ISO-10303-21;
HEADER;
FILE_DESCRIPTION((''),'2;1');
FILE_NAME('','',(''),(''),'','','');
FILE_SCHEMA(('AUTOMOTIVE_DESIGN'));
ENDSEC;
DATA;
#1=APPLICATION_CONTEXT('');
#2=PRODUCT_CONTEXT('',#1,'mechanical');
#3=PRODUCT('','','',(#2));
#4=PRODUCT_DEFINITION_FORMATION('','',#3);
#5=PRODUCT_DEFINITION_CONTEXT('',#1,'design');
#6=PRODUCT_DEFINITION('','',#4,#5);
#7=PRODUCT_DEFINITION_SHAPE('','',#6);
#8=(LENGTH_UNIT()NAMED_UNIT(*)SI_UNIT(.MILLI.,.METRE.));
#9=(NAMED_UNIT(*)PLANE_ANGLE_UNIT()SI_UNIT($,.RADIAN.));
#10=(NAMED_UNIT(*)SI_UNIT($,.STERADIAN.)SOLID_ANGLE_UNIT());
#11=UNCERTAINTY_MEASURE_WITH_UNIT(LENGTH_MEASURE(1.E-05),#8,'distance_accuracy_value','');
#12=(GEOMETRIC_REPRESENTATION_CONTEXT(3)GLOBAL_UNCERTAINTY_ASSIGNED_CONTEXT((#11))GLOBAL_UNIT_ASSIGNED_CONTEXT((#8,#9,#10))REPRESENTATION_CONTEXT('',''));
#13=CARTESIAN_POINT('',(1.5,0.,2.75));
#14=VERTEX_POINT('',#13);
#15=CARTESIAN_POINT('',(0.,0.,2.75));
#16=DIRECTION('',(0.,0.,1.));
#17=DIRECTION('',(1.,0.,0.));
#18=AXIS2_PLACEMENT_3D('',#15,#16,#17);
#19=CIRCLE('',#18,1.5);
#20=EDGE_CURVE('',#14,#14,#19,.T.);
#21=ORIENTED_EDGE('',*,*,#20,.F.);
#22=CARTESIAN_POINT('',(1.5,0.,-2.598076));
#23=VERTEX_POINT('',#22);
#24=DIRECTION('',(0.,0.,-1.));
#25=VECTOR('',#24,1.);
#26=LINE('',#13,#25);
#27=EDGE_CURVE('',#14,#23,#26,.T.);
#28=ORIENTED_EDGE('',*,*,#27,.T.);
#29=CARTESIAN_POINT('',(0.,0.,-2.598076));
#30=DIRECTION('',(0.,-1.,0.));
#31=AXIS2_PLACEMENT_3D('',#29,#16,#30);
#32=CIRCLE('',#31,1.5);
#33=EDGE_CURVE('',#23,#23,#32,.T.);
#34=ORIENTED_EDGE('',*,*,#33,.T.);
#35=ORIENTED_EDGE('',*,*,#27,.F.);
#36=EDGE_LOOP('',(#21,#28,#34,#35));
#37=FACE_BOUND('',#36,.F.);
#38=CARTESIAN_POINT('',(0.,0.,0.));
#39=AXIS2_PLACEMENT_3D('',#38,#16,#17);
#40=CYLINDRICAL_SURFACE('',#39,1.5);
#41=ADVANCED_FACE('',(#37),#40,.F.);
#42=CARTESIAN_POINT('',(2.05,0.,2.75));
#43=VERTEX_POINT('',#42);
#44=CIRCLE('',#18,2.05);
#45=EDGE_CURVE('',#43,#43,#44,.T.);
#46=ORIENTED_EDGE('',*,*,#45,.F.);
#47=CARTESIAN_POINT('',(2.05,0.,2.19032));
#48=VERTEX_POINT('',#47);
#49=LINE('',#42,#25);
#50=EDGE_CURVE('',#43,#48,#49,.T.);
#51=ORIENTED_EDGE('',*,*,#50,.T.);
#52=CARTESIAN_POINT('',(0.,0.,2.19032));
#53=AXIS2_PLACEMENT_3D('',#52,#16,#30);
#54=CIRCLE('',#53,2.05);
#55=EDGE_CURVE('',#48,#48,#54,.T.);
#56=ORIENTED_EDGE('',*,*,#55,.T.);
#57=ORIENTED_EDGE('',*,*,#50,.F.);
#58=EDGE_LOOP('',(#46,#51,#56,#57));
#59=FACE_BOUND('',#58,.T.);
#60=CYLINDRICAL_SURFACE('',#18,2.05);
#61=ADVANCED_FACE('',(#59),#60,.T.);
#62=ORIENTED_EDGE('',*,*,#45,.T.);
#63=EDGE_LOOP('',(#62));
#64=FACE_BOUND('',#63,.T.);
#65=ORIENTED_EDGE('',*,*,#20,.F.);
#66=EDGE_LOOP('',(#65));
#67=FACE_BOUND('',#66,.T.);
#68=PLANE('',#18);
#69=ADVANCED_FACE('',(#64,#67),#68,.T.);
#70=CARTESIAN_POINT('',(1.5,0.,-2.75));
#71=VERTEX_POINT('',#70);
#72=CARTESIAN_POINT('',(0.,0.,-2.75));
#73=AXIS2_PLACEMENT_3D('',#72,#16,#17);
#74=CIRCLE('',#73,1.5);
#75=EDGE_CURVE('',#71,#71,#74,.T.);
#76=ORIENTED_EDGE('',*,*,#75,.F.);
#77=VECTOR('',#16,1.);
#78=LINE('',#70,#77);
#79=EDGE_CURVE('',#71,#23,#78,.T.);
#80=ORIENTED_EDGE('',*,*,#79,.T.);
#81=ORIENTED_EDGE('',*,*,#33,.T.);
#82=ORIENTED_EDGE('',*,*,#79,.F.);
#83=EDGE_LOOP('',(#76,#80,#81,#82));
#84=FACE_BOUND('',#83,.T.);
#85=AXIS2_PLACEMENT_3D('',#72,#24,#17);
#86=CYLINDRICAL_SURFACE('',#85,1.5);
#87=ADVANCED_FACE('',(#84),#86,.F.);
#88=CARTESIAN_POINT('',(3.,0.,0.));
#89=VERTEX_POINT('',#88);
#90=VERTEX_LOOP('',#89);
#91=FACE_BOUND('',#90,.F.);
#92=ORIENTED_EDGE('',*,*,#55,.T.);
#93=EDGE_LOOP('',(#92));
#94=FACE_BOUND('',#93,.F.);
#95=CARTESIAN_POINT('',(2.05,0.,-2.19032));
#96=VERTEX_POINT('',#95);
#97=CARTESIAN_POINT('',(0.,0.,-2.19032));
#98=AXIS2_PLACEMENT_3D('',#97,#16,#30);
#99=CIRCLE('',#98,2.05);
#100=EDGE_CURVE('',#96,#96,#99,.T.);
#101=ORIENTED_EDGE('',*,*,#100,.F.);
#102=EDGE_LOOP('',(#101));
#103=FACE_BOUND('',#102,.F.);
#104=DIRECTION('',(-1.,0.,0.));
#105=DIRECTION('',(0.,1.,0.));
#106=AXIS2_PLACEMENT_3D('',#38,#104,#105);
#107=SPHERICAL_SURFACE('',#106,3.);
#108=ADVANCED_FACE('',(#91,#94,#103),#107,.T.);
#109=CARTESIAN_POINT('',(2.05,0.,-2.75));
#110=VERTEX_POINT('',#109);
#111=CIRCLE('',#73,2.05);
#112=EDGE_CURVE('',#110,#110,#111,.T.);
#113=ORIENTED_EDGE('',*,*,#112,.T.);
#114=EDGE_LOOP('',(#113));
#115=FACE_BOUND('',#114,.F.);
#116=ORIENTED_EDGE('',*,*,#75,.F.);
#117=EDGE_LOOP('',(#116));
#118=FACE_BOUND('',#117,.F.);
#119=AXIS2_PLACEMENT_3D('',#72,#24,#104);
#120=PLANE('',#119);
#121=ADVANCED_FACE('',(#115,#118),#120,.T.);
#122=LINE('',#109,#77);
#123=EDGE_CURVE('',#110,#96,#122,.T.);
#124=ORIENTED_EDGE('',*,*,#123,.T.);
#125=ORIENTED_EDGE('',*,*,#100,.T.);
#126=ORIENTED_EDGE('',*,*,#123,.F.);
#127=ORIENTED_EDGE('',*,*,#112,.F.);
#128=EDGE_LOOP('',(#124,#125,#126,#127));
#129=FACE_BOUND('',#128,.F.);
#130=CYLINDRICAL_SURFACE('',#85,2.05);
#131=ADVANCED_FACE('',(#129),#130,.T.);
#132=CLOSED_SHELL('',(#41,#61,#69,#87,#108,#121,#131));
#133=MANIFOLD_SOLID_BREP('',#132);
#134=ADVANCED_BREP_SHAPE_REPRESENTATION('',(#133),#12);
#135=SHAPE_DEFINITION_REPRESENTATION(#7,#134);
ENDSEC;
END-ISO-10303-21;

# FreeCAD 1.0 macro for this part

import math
import FreeCAD as App
import Part
import Sketcher

doc = App.newDocument("Part")
params = doc.addObject("Spreadsheet::Sheet", "Params")
for row, (alias, value) in enumerate([
    ("sketch1_radius", "3 mm"),
    ("revolution_angle", "360 deg"),
    ("sketch2_diameter", "3 mm"),
    ("sketch3_diameter", "4.1 mm"),
    ("sketch3_diameter2", "3 mm"),
    ("pad1_length", "0.5597 mm"),
], start=1):
    params.set(f"A{row}", alias)
    params.set(f"B{row}", "=" + value)
    params.setAlias(f"B{row}", alias)

body = doc.addObject("PartDesign::Body", "Body")

# Sketch on XY plane
sketch1 = body.newObject("Sketcher::SketchObject", "Sketch")
sketch1.AttachmentSupport = (doc.getObject("XY_Plane"), [""])
sketch1.MapMode = "FlatFace"
sketch1.addGeometry([
    Part.LineSegment(App.Vector(-3, 0, 0), App.Vector(3, 0, 0)),
    Part.ArcOfCircle(Part.Circle(App.Vector(0, 0, 0), App.Vector(0, 0, 1), 3), math.radians(0), math.radians(180)),
], False)
sketch1.addConstraint([
    Sketcher.Constraint("Coincident", 0, 1, 1, 2),
    Sketcher.Constraint("Coincident", 1, 1, 0, 2),
    Sketcher.Constraint("Horizontal", 0),
    Sketcher.Constraint("Coincident", 1, 3, -1, 1),
    Sketcher.Constraint("PointOnObject", 0, 1, -1),
    Sketcher.Constraint("Radius", 1, 3.0),
])
sketch1.setExpression("Constraints[5]", "Params.sketch1_radius")
revolution = body.newObject("PartDesign::Revolution", "Revolution")
revolution.Profile = sketch1
revolution.ReferenceAxis = (sketch1, ["H_Axis"])
revolution.setExpression("Angle", "Params.revolution_angle")

# Sketch on XY plane
sketch2 = body.newObject("Sketcher::SketchObject", "Sketch001")
sketch2.AttachmentSupport = (doc.getObject("XY_Plane"), [""])
sketch2.MapMode = "FlatFace"
sketch2.addGeometry(Part.Circle(App.Vector(0, 0, 0), App.Vector(0, 0, 1), 1.5), False)
sketch2.addConstraint([
    Sketcher.Constraint("Coincident", 0, 3, -1, 1),
    Sketcher.Constraint("Diameter", 0, 3.0),
])
sketch2.setExpression("Constraints[1]", "Params.sketch2_diameter")
pocket1 = body.newObject("PartDesign::Pocket", "Pocket")
pocket1.Profile = sketch2
pocket1.Type = "ThroughAll"
pocket1.Midplane = True

# Sketch on XY plane
sketch3 = body.newObject("Sketcher::SketchObject", "Sketch002")
sketch3.AttachmentSupport = (doc.getObject("XY_Plane"), [""])
sketch3.MapMode = "FlatFace"
sketch3.AttachmentOffset = App.Placement(App.Vector(0, 0, 2.75), App.Rotation())
sketch3.addGeometry([
    Part.Circle(App.Vector(0, 0, 0), App.Vector(0, 0, 1), 2),
    Part.Circle(App.Vector(0, 0, 0), App.Vector(0, 0, 1), 1.5),
], False)
sketch3.addConstraint([
    Sketcher.Constraint("Coincident", 0, 3, -1, 1),
    Sketcher.Constraint("Coincident", 1, 3, -1, 1),
    Sketcher.Constraint("Diameter", 0, 4.1),
    Sketcher.Constraint("Diameter", 1, 3.0),
])
sketch3.setExpression("Constraints[2]", "Params.sketch3_diameter")
sketch3.setExpression("Constraints[3]", "Params.sketch3_diameter2")
pad1 = body.newObject("PartDesign::Pad", "Pad")
pad1.Profile = sketch3
pad1.setExpression("Length", "Params.pad1_length")
pad1.Reversed = True
doc.recompute()

mirrored = body.newObject("PartDesign::Mirrored", "Mirrored")
mirrored.Originals = [pad1]
mirrored.MirrorPlane = (doc.getObject("XY_Plane"), [""])
body.Tip = mirrored

doc.recompute()
